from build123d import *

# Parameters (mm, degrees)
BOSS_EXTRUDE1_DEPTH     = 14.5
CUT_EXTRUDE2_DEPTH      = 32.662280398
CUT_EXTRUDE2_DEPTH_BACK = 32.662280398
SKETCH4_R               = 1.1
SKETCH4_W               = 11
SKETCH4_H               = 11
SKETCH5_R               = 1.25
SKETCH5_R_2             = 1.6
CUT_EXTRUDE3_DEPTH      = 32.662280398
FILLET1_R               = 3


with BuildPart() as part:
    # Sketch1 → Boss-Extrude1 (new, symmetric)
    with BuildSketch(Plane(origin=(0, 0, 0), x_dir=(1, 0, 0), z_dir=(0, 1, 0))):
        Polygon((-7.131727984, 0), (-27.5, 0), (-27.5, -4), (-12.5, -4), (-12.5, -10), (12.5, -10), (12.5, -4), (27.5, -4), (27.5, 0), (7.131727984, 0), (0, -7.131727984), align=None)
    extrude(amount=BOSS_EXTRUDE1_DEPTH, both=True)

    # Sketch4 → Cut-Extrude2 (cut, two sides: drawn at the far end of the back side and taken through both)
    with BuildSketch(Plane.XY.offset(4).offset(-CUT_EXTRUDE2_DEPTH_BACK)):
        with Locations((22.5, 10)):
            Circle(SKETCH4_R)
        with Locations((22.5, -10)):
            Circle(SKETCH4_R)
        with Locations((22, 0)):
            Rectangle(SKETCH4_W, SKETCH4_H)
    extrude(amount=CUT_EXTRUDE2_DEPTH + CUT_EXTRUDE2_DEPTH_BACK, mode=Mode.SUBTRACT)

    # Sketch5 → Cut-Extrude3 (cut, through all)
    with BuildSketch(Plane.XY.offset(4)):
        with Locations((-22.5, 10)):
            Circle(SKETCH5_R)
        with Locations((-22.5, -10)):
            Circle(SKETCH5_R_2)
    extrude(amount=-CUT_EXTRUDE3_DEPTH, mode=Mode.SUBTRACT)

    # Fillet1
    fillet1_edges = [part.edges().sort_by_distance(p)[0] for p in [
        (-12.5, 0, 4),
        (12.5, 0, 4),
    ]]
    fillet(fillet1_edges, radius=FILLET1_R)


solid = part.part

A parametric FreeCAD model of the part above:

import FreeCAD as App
import Part
import Sketcher
from FreeCAD import Vector


def edges_at(feature, points):
    """Names of the edges that pass closest to the given points."""
    edges = feature.Shape.Edges
    near = lambda p: min(range(len(edges)), key=lambda i: edges[i].distToShape(Part.Vertex(*p))[0])
    return sorted({f"Edge{near(p) + 1}" for p in points})

doc = App.newDocument("Part")
body = doc.addObject("PartDesign::Body", "Body")

# Sketch on XZ plane
sketch1 = body.newObject("Sketcher::SketchObject", "Sketch")
sketch1.AttachmentSupport = (doc.getObject("XZ_Plane"), [""])
sketch1.MapMode = "FlatFace"
sketch1.addGeometry(Part.LineSegment(Vector(-7.1, 0, 0), Vector(-27.5, 0, 0)), False)
sketch1.addGeometry(Part.LineSegment(Vector(-27.5, 0, 0), Vector(-27.5, 4, 0)), False)
sketch1.addGeometry(Part.LineSegment(Vector(-27.5, 4, 0), Vector(-12.5, 4, 0)), False)
sketch1.addGeometry(Part.LineSegment(Vector(-12.5, 4, 0), Vector(-12.5, 10, 0)), False)
sketch1.addGeometry(Part.LineSegment(Vector(-12.5, 10, 0), Vector(12.5, 10, 0)), False)
sketch1.addGeometry(Part.LineSegment(Vector(12.5, 10, 0), Vector(12.5, 4, 0)), False)
sketch1.addGeometry(Part.LineSegment(Vector(12.5, 4, 0), Vector(27.5, 4, 0)), False)
sketch1.addGeometry(Part.LineSegment(Vector(27.5, 4, 0), Vector(27.5, 0, 0)), False)
sketch1.addGeometry(Part.LineSegment(Vector(27.5, 0, 0), Vector(7.1, 0, 0)), False)
sketch1.addGeometry(Part.LineSegment(Vector(7.1, 0, 0), Vector(0, 7.1, 0)), False)
sketch1.addGeometry(Part.LineSegment(Vector(0, 7.1, 0), Vector(-7.1, 0, 0)), False)
sketch1.addConstraint(Sketcher.Constraint("Coincident", 0, 2, 1, 1))
sketch1.addConstraint(Sketcher.Constraint("Coincident", 1, 2, 2, 1))
sketch1.addConstraint(Sketcher.Constraint("Coincident", 2, 2, 3, 1))
sketch1.addConstraint(Sketcher.Constraint("Coincident", 3, 2, 4, 1))
sketch1.addConstraint(Sketcher.Constraint("Coincident", 4, 2, 5, 1))
sketch1.addConstraint(Sketcher.Constraint("Coincident", 5, 2, 6, 1))
sketch1.addConstraint(Sketcher.Constraint("Coincident", 6, 2, 7, 1))
sketch1.addConstraint(Sketcher.Constraint("Coincident", 7, 2, 8, 1))
sketch1.addConstraint(Sketcher.Constraint("Coincident", 8, 2, 9, 1))
sketch1.addConstraint(Sketcher.Constraint("Coincident", 9, 2, 10, 1))
sketch1.addConstraint(Sketcher.Constraint("Coincident", 10, 2, 0, 1))
sketch1.addConstraint(Sketcher.Constraint("Horizontal", 0))
sketch1.addConstraint(Sketcher.Constraint("Vertical", 1))
sketch1.addConstraint(Sketcher.Constraint("Horizontal", 2))
sketch1.addConstraint(Sketcher.Constraint("Vertical", 3))
sketch1.addConstraint(Sketcher.Constraint("Horizontal", 4))
sketch1.addConstraint(Sketcher.Constraint("Vertical", 5))
sketch1.addConstraint(Sketcher.Constraint("Horizontal", 6))
sketch1.addConstraint(Sketcher.Constraint("Vertical", 7))
sketch1.addConstraint(Sketcher.Constraint("Horizontal", 8))
sketch1.addConstraint(Sketcher.Constraint("Symmetric", 0, 2, 7, 2, -1, 1))
sketch1.addConstraint(Sketcher.Constraint("Symmetric", 2, 2, 5, 2, -2))
sketch1.addConstraint(Sketcher.Constraint("Symmetric", 8, 2, 10, 2, -2))
sketch1.addConstraint(Sketcher.Constraint("PointOnObject", 9, 2, -2))
sketch1.addConstraint(Sketcher.Constraint("Perpendicular", 9, 10))
sketch1.addConstraint(Sketcher.Constraint("DistanceX", 2, 1, 2, 2, 15.0))
sketch1.addConstraint(Sketcher.Constraint("DistanceX", 4, 1, 4, 2, 25.0))
sketch1.addConstraint(Sketcher.Constraint("DistanceY", 1, 1, 1, 2, 4.0))
sketch1.addConstraint(Sketcher.Constraint("DistanceY", 3, 1, 3, 2, 6.0))
sketch1.addConstraint(Sketcher.Constraint("DistanceX", 0, 2, 0, 1, 20.368272))
pad1 = body.newObject("PartDesign::Pad", "Pad")
pad1.Profile = sketch1
pad1.Length = 29
pad1.Midplane = True

# Sketch on XY plane
sketch2 = body.newObject("Sketcher::SketchObject", "Sketch001")
sketch2.AttachmentSupport = (doc.getObject("XY_Plane"), [""])
sketch2.MapMode = "FlatFace"
sketch2.AttachmentOffset = App.Placement(Vector(0, 0, 4), App.Rotation())
sketch2.addGeometry(Part.Circle(Vector(22.5, 10, 0), Vector(0, 0, 1), 1.1), False)
sketch2.addGeometry(Part.Circle(Vector(22.5, -10, 0), Vector(0, 0, 1), 1.1), False)
sketch2.addGeometry(Part.LineSegment(Vector(16.5, 5.5, 0), Vector(16.5, -5.5, 0)), False)
sketch2.addGeometry(Part.LineSegment(Vector(16.5, -5.5, 0), Vector(27.5, -5.5, 0)), False)
sketch2.addGeometry(Part.LineSegment(Vector(27.5, -5.5, 0), Vector(27.5, 5.5, 0)), False)
sketch2.addGeometry(Part.LineSegment(Vector(27.5, 5.5, 0), Vector(16.5, 5.5, 0)), False)
sketch2.addConstraint(Sketcher.Constraint("Coincident", 2, 2, 3, 1))
sketch2.addConstraint(Sketcher.Constraint("Coincident", 3, 2, 4, 1))
sketch2.addConstraint(Sketcher.Constraint("Coincident", 4, 2, 5, 1))
sketch2.addConstraint(Sketcher.Constraint("Coincident", 5, 2, 2, 1))
sketch2.addConstraint(Sketcher.Constraint("Vertical", 2))
sketch2.addConstraint(Sketcher.Constraint("Horizontal", 3))
sketch2.addConstraint(Sketcher.Constraint("Vertical", 4))
sketch2.addConstraint(Sketcher.Constraint("Horizontal", 5))
sketch2.addConstraint(Sketcher.Constraint("Equal", 0, 1))
sketch2.addConstraint(Sketcher.Constraint("Symmetric", 0, 3, 1, 3, -1))
sketch2.addConstraint(Sketcher.Constraint("Equal", 5, 2))
sketch2.addConstraint(Sketcher.Constraint("Diameter", 0, 2.2))
sketch2.addConstraint(Sketcher.Constraint("DistanceX", 3, 1, 3, 2, 11.0))
sketch2.addConstraint(Sketcher.Constraint("DistanceY", -1, 1, 0, 3, 10.0))
sketch2.addConstraint(Sketcher.Constraint("DistanceX", 2, 2, 1, 3, 6.0))
sketch2.addConstraint(Sketcher.Constraint("DistanceX", -1, 1, 0, 3, 22.5))
sketch2.addConstraint(Sketcher.Constraint("DistanceY", 2, 2, -1, 1, 5.5))
pocket1 = body.newObject("PartDesign::Pocket", "Pocket")
pocket1.Profile = sketch2
pocket1.Type = "ThroughAll"
pocket1.Midplane = True

# Sketch on XY plane
sketch3 = body.newObject("Sketcher::SketchObject", "Sketch002")
sketch3.AttachmentSupport = (doc.getObject("XY_Plane"), [""])
sketch3.MapMode = "FlatFace"
sketch3.AttachmentOffset = App.Placement(Vector(0, 0, 4), App.Rotation())
sketch3.addGeometry(Part.Circle(Vector(-22.5, 10, 0), Vector(0, 0, 1), 1.2), False)
sketch3.addGeometry(Part.Circle(Vector(-22.5, -10, 0), Vector(0, 0, 1), 1.6), False)
sketch3.addConstraint(Sketcher.Constraint("Symmetric", 0, 3, 1, 3, -1))
sketch3.addConstraint(Sketcher.Constraint("Diameter", 0, 2.5))
sketch3.addConstraint(Sketcher.Constraint("Diameter", 1, 3.2))
sketch3.addConstraint(Sketcher.Constraint("DistanceY", -1, 1, 0, 3, 10.0))
sketch3.addConstraint(Sketcher.Constraint("DistanceX", 0, 3, -1, 1, 22.5))
pocket2 = body.newObject("PartDesign::Pocket", "Pocket001")
pocket2.Profile = sketch3
pocket2.Type = "ThroughAll"
doc.recompute()

fillet = body.newObject("PartDesign::Fillet", "Fillet")
fillet.Base = (pocket2, edges_at(pocket2, [(-12.5, 0, 4), (12.5, 0, 4)]))
fillet.Radius = 3

doc.recompute()
